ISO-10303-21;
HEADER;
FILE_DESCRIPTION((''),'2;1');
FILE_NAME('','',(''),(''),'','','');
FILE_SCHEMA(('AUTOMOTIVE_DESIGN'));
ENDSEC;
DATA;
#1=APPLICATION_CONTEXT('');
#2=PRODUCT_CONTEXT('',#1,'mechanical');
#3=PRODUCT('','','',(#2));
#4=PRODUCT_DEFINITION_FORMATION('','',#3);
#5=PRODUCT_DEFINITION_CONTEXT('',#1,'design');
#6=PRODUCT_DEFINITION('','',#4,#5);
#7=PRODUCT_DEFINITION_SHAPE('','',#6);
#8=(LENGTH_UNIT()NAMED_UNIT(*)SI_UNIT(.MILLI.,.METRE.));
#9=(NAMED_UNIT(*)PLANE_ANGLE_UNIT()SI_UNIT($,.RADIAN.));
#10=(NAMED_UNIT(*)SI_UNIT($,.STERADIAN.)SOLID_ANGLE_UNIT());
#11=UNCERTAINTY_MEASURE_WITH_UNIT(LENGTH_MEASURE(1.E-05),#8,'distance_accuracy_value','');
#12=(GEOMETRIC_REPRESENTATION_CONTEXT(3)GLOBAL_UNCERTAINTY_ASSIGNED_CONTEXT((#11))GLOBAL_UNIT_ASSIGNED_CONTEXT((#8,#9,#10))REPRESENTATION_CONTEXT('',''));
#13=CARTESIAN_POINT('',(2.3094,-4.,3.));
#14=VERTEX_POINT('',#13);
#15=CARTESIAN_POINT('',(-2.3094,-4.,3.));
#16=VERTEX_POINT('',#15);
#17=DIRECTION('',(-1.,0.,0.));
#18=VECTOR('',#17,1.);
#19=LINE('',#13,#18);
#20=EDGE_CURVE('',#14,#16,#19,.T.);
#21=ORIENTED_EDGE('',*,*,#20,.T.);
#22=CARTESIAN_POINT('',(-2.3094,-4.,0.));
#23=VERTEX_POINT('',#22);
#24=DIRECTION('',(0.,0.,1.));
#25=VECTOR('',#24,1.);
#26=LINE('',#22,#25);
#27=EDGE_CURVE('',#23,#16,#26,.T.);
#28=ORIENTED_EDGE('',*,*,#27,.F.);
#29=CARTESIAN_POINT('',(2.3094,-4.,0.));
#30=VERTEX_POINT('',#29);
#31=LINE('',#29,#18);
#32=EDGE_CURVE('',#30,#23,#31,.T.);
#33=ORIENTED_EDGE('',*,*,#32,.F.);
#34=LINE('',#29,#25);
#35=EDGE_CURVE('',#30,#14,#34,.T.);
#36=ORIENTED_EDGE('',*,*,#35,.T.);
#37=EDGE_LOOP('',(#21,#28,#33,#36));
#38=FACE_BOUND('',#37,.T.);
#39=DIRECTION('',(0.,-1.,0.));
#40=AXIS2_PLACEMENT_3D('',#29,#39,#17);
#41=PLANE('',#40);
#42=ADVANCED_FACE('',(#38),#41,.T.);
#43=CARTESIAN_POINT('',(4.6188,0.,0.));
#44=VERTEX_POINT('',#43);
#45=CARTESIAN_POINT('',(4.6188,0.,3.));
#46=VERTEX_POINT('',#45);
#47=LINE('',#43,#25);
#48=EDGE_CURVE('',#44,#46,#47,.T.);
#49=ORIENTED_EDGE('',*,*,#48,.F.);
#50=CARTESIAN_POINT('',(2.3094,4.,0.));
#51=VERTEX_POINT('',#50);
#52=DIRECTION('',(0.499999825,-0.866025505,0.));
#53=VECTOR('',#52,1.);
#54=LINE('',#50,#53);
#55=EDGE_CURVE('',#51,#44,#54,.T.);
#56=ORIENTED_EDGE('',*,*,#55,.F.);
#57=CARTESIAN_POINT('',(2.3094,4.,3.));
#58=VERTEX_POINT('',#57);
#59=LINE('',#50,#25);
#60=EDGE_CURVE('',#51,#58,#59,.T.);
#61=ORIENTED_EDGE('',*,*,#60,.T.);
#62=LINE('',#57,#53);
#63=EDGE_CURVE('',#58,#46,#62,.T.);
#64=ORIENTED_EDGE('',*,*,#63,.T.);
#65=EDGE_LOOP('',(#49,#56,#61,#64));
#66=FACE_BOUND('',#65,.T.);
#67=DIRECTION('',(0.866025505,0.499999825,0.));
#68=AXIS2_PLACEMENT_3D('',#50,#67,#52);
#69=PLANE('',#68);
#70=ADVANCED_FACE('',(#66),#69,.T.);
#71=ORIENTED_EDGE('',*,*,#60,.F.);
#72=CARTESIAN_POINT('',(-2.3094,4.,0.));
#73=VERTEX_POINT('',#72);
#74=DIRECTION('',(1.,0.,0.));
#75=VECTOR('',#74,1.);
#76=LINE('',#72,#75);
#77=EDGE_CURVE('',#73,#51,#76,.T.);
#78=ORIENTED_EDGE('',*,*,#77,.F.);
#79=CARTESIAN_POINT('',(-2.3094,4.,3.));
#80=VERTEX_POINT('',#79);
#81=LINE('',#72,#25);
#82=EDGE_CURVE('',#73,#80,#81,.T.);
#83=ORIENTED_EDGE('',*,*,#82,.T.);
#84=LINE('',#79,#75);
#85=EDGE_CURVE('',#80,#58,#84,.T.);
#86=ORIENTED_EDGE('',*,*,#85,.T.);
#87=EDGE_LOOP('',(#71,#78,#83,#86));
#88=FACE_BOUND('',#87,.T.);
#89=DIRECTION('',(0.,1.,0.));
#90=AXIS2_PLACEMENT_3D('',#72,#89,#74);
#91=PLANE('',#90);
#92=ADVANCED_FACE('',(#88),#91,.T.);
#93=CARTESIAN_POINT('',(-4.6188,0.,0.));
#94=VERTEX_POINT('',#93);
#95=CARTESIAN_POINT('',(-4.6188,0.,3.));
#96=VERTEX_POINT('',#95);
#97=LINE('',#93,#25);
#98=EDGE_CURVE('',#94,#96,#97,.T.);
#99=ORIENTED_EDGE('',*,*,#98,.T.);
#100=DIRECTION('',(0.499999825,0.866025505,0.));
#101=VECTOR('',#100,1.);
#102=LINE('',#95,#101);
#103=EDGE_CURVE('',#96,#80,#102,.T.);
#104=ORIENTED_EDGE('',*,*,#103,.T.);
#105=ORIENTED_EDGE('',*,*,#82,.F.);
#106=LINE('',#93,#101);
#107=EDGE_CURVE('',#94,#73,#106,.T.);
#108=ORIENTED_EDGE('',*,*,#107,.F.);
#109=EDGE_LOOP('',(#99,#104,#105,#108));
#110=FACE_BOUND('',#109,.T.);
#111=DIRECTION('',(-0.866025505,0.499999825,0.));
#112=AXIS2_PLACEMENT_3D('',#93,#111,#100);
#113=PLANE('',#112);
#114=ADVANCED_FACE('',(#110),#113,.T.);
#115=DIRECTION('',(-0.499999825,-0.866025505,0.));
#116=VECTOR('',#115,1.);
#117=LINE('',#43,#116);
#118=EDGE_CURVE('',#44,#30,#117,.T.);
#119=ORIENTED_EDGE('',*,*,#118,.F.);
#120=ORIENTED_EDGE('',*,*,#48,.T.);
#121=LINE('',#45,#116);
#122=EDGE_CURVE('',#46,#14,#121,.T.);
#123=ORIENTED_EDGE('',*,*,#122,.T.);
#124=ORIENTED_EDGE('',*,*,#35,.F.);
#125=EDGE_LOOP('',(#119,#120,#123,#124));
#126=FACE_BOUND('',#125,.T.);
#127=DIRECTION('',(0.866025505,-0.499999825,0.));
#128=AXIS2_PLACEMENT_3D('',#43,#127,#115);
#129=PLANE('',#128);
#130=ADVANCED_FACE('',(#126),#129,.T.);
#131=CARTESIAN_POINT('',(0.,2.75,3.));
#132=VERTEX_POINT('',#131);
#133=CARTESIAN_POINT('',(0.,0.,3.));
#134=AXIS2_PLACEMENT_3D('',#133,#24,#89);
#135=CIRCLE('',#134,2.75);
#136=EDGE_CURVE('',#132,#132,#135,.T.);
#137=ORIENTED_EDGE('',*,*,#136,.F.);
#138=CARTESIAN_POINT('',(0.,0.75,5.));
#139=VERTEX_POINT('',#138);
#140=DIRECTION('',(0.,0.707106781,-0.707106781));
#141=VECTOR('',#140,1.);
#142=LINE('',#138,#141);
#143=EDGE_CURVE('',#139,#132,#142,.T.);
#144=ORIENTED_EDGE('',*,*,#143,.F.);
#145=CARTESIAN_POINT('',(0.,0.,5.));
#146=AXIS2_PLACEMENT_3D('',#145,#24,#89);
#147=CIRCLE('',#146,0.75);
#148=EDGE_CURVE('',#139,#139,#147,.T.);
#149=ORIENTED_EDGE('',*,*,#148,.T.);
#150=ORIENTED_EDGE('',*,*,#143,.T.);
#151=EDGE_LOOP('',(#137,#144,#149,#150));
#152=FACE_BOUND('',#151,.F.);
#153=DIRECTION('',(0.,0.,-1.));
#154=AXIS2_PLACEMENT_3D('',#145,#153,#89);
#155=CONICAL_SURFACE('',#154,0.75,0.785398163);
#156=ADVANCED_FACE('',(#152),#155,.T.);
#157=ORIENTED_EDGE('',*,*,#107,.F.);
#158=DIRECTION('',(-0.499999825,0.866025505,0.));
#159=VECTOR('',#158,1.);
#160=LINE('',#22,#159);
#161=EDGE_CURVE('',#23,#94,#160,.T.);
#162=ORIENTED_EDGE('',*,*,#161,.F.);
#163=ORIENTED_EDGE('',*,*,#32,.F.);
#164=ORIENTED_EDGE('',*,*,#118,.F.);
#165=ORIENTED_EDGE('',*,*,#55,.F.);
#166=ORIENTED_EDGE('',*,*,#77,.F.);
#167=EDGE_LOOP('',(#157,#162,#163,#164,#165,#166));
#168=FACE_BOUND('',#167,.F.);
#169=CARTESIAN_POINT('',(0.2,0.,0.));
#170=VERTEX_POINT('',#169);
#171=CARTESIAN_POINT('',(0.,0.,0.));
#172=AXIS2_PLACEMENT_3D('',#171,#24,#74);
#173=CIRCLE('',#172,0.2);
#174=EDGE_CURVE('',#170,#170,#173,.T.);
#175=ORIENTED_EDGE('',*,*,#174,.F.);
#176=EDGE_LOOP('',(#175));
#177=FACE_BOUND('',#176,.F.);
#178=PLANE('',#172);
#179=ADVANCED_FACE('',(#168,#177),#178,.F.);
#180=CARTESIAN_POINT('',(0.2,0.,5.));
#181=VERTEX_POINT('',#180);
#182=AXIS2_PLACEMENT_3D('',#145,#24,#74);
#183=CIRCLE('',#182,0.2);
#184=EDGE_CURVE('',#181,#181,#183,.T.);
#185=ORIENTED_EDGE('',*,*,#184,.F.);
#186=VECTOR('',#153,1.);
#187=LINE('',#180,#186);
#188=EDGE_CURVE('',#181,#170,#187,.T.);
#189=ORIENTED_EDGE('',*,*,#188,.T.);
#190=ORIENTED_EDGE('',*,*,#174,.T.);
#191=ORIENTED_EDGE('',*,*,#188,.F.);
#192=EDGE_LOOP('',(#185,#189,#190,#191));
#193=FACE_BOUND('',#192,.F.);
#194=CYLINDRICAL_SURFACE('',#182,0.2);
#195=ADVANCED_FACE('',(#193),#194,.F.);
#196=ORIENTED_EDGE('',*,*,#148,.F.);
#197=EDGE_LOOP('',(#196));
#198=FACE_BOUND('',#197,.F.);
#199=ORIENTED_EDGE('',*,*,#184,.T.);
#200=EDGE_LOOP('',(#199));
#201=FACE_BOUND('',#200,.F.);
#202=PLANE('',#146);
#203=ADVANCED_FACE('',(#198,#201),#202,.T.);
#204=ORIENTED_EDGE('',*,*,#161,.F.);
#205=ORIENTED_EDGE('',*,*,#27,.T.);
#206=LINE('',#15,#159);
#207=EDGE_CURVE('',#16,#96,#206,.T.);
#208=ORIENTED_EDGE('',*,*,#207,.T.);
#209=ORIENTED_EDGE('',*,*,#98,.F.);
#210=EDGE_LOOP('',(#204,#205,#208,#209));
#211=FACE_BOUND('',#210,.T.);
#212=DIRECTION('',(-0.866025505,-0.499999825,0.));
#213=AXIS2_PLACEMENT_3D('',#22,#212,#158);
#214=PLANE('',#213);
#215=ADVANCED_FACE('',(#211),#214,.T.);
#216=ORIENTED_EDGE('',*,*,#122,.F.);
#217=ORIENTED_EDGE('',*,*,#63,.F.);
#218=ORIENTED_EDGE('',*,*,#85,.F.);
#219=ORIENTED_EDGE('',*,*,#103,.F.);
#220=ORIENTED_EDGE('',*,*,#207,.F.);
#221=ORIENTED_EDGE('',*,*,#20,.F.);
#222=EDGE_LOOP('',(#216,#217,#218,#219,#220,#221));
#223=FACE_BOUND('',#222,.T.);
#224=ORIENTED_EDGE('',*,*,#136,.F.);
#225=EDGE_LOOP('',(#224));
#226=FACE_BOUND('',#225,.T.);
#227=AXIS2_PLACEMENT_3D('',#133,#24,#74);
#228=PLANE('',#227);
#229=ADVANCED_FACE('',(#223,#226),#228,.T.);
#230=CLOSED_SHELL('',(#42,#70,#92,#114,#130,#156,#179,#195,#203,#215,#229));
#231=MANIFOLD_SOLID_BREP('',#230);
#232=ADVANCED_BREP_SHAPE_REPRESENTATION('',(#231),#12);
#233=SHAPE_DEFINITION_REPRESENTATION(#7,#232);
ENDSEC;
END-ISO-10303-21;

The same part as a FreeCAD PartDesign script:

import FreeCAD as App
import Part
import Sketcher
Q = App.Units.Quantity


def add_polygon(sketch, points):
    """Adds a closed chain of lines whose ends are joined by coincident constraints."""
    first, n = sketch.GeometryCount, len(points)
    for a, b in zip(points, points[1:] + points[:1]):
        sketch.addGeometry(Part.LineSegment(App.Vector(*a, 0), App.Vector(*b, 0)), False)
    for i in range(n):
        sketch.addConstraint(Sketcher.Constraint("Coincident", first + i, 2, first + (i + 1) % n, 1))

doc = App.newDocument("Part")
body = doc.addObject("PartDesign::Body", "Body")

sketch1 = body.newObject("Sketcher::SketchObject", "Sketch")
sketch1.AttachmentSupport = (doc.getObject("XY_Plane"), [""])
sketch1.MapMode = "FlatFace"
add_polygon(sketch1, [(4.6, 0), (2.3, 4), (-2.3, 4), (-4.6, 0), (-2.3, -4), (2.3, -4)])
sketch1.addConstraint([
    Sketcher.Constraint("Horizontal", 1),
    Sketcher.Constraint("Horizontal", 4),
    Sketcher.Constraint("Symmetric", 0, 2, 3, 2, -1, 1),
    Sketcher.Constraint("Symmetric", 2, 2, 5, 2, -1, 1),
    Sketcher.Constraint("PointOnObject", 2, 2, -1),
    Sketcher.Constraint("Parallel", 2, 5),
    Sketcher.Constraint("Vertical", 1, 2, 3, 2),
    Sketcher.Constraint("DistanceY", 3, 2, 1, 2, Q("8 mm")),
    Sketcher.Constraint("Angle", 0, Q("120 deg")),
    Sketcher.Constraint("DistanceX", 1, 2, 1, 1, Q("4.6188 mm")),
])
pad1 = body.newObject("PartDesign::Pad", "Pad")
pad1.Profile = sketch1
pad1.Length = 3

sketch2 = body.newObject("Sketcher::SketchObject", "Sketch001")
sketch2.AttachmentSupport = (doc.getObject("YZ_Plane"), [""])
sketch2.MapMode = "FlatFace"
add_polygon(sketch2, [(0, 5), (0, 3), (2.8, 3), (0.8, 5)])
sketch2.addConstraint([
    Sketcher.Constraint("Vertical", 0),
    Sketcher.Constraint("Horizontal", 1),
    Sketcher.Constraint("Horizontal", 3),
    Sketcher.Constraint("PointOnObject", 0, 2, -2),
    Sketcher.Constraint("DistanceY", 0, 2, 0, 1, Q("2 mm")),
    Sketcher.Constraint("DistanceX", 2, 2, 1, 2, Q("2 mm")),
    Sketcher.Constraint("DistanceX", 1, 1, 1, 2, Q("2.75 mm")),
    Sketcher.Constraint("DistanceY", -1, 1, 0, 2, Q("3 mm")),
])
revolution = body.newObject("PartDesign::Revolution", "Revolution")
revolution.Profile = sketch2
revolution.ReferenceAxis = (sketch2, ["V_Axis"])
revolution.Angle = 360

sketch3 = body.newObject("Sketcher::SketchObject", "Sketch002")
sketch3.AttachmentSupport = (doc.getObject("XY_Plane"), [""])
sketch3.MapMode = "FlatFace"
sketch3.AttachmentOffset = App.Placement(App.Vector(0, 0, 5), App.Rotation())
sketch3.addGeometry(Part.Circle(App.Vector(0, 0, 0), App.Vector(0, 0, 1), 0.2), False)
sketch3.addConstraint([
    Sketcher.Constraint("Coincident", 0, 3, -1, 1),
    Sketcher.Constraint("Diameter", 0, Q("0.4 mm")),
])
pocket1 = body.newObject("PartDesign::Pocket", "Pocket")
pocket1.Profile = sketch3
pocket1.Type = "ThroughAll"

doc.recompute()
